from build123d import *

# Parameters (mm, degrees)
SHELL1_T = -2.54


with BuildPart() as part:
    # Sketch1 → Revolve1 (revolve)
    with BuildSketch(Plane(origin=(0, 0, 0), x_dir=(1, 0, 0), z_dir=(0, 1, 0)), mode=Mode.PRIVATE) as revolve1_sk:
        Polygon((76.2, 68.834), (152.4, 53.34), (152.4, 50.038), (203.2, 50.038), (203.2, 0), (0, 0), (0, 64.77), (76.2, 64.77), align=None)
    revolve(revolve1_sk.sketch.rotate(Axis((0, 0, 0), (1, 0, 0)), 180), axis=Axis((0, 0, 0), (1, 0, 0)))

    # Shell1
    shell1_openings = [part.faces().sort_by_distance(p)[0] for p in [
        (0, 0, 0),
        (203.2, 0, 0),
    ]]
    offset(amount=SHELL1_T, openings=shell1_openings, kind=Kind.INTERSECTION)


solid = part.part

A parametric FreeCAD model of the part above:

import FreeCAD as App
import Part
import Sketcher
Q = App.Units.Quantity


def faces_at(feature, points):
    """Names of the faces that lie closest to the given points."""
    faces = feature.Shape.Faces
    near = lambda p: min(range(len(faces)), key=lambda i: faces[i].distToShape(Part.Vertex(*p))[0])
    return sorted({f"Face{near(p) + 1}" for p in points})


def add_polygon(sketch, points):
    """Adds a closed chain of lines whose ends are joined by coincident constraints."""
    first, n = sketch.GeometryCount, len(points)
    for a, b in zip(points, points[1:] + points[:1]):
        sketch.addGeometry(Part.LineSegment(App.Vector(*a, 0), App.Vector(*b, 0)), False)
    for i in range(n):
        sketch.addConstraint(Sketcher.Constraint("Coincident", first + i, 2, first + (i + 1) % n, 1))

doc = App.newDocument("Part")
params = doc.addObject("Spreadsheet::Sheet", "Params")
for row, (alias, value) in enumerate([
    ("sketch1_width", "3 in"),
    ("sketch1_width2", "8 in"),
    ("sketch1_width3", "2 in"),
    ("sketch1_height", "0.16 in"),
    ("sketch1_height2", "2.55 in"),
    ("revolution_angle", "360 deg"),
    ("thickness_wall", "0.1 in"),
], start=1):
    params.set(f"A{row}", alias)
    params.set(f"B{row}", "=" + value)
    params.setAlias(f"B{row}", alias)

body = doc.addObject("PartDesign::Body", "Body")

sketch1 = doc.addObject("Sketcher::SketchObject", "Sketch")
body.addObject(sketch1)
sketch1.AttachmentSupport = (doc.XZ_Plane, [""])
sketch1.MapMode = "FlatFace"
add_polygon(sketch1, [(152.4, -53.34), (76.2, -68.834), (76.2, -64.77), (0, -64.77), (0, 0), (203.2, 0), (203.2, -50.038), (152.4, -50.038)])
sketch1.addConstraint(Sketcher.Constraint("Vertical", 1))
sketch1.addConstraint(Sketcher.Constraint("Horizontal", 2))
sketch1.addConstraint(Sketcher.Constraint("Vertical", 3))
sketch1.addConstraint(Sketcher.Constraint("Horizontal", 4))
sketch1.addConstraint(Sketcher.Constraint("Vertical", 5))
sketch1.addConstraint(Sketcher.Constraint("Horizontal", 6))
sketch1.addConstraint(Sketcher.Constraint("Vertical", 7))
sketch1.addConstraint(Sketcher.Constraint("Coincident", 3, 2, -1, 1))
sketch1.addConstraint(Sketcher.Constraint("DistanceX", 2, 2, 2, 1, Q("3 in")))
sketch1.addConstraint(Sketcher.Constraint("DistanceX", 4, 1, 4, 2, Q("8 in")))
sketch1.addConstraint(Sketcher.Constraint("DistanceX", 6, 2, 6, 1, Q("2 in")))
sketch1.addConstraint(Sketcher.Constraint("DistanceY", 1, 1, 1, 2, Q("0.16 in")))
sketch1.addConstraint(Sketcher.Constraint("DistanceY", 3, 1, 3, 2, Q("2.55 in")))
sketch1.addConstraint(Sketcher.Constraint("DistanceY", 5, 2, 5, 1, Q("1.97 in")))
sketch1.addConstraint(Sketcher.Constraint("DistanceY", 7, 2, 7, 1, Q("0.13 in")))
sketch1.setExpression("Constraints[16]", "Params.sketch1_width")
sketch1.setExpression("Constraints[17]", "Params.sketch1_width2")
sketch1.setExpression("Constraints[18]", "Params.sketch1_width3")
sketch1.setExpression("Constraints[19]", "Params.sketch1_height")
sketch1.setExpression("Constraints[20]", "Params.sketch1_height2")
revolution = doc.addObject("PartDesign::Revolution", "Revolution")
body.addObject(revolution)
revolution.Profile = sketch1
revolution.ReferenceAxis = (sketch1, ["H_Axis"])
revolution.setExpression("Angle", "Params.revolution_angle")
doc.recompute()

thickness = doc.addObject("PartDesign::Thickness", "Thickness")
body.addObject(thickness)
thickness.Base = (revolution, faces_at(revolution, [(0, 0, 0), (203.2, 0, 0)]))
thickness.setExpression("Value", "Params.thickness_wall")
thickness.Reversed = True
thickness.Join = "Intersection"

doc.recompute()
